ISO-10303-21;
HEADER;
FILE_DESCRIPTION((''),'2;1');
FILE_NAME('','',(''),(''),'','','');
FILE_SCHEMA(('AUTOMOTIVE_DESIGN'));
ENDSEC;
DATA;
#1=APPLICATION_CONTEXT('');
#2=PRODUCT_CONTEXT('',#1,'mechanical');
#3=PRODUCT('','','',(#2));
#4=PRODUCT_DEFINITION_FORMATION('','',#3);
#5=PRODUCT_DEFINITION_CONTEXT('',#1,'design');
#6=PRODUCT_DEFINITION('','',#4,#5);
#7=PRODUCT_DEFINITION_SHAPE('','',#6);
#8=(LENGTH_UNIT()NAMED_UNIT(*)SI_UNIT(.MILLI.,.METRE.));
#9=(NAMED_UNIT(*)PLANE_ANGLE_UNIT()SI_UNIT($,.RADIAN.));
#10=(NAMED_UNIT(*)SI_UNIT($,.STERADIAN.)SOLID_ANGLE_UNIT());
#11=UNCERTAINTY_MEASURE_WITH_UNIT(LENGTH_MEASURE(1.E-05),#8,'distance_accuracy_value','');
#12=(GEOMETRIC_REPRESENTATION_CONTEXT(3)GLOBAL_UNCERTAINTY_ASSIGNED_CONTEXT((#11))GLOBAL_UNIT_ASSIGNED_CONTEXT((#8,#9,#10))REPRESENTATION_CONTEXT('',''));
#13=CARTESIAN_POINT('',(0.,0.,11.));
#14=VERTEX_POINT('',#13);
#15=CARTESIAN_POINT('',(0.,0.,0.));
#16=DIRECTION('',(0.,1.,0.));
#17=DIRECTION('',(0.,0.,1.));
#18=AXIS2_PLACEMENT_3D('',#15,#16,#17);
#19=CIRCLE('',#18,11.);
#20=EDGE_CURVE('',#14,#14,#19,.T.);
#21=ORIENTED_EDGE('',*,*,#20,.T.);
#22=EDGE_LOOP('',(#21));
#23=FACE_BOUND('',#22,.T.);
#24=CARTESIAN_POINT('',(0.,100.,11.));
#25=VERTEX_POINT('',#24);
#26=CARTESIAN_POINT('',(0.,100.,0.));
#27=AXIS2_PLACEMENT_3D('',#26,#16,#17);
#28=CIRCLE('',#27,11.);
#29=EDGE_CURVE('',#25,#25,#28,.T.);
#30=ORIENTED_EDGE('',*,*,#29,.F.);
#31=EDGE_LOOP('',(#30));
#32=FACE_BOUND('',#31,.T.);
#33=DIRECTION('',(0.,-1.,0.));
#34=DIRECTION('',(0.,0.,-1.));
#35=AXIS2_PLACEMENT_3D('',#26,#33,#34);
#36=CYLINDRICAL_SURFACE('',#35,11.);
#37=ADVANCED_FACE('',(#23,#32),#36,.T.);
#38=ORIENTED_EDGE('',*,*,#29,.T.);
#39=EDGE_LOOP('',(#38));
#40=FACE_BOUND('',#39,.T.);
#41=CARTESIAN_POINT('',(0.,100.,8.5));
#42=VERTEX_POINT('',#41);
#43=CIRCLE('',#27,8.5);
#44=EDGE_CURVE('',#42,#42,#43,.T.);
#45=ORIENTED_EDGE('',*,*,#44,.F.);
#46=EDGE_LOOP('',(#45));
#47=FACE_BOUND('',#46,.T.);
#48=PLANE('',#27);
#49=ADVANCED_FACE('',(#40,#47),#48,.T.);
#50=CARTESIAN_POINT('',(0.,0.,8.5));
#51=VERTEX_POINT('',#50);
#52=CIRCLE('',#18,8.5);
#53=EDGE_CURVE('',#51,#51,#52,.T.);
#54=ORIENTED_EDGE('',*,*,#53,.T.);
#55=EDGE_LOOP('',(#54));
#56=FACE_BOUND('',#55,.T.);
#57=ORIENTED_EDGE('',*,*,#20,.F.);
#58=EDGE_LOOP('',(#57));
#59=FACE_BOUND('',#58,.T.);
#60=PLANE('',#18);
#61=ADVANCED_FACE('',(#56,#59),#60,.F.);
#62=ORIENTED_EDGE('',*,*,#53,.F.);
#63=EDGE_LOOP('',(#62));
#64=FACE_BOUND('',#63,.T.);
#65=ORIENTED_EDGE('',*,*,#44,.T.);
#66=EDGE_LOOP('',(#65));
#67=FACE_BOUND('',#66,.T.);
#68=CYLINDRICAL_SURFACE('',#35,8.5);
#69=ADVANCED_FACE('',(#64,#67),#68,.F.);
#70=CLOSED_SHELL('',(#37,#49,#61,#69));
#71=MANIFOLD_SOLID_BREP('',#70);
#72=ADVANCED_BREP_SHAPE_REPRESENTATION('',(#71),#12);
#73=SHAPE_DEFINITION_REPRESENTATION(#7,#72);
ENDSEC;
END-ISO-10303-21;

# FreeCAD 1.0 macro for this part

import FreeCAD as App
import Part
import Sketcher

V = App.Vector
Q = App.Units.Quantity

doc = App.newDocument("Part")
params = doc.addObject("Spreadsheet::Sheet", "Params")
for row, (alias, value) in enumerate([
    ("sketch1_diameter", "22 mm"),
    ("sketch1_diameter2", "17 mm"),
    ("pad1_length", "100 mm"),
], start=1):
    params.set(f"A{row}", alias)
    params.set(f"B{row}", "=" + value)
    params.setAlias(f"B{row}", alias)

body = doc.addObject("PartDesign::Body", "Body")

# Sketch on XZ plane
sketch1 = body.newObject("Sketcher::SketchObject", "Sketch")
sketch1.AttachmentSupport = (doc.getObject("XZ_Plane"), [""])
sketch1.MapMode = "FlatFace"
sketch1.addGeometry([
    Part.Circle(V(0, 0, 0), V(0, 0, 1), 11),
    Part.Circle(V(0, 0, 0), V(0, 0, 1), 8),
], False)
sketch1.addConstraint([
    Sketcher.Constraint("Coincident", 0, 3, -1, 1),
    Sketcher.Constraint("Coincident", 1, 3, -1, 1),
    Sketcher.Constraint("Diameter", 0, Q("22 mm")),
    Sketcher.Constraint("Diameter", 1, Q("17 mm")),
])
sketch1.setExpression("Constraints[2]", "Params.sketch1_diameter")
sketch1.setExpression("Constraints[3]", "Params.sketch1_diameter2")
pad1 = body.newObject("PartDesign::Pad", "Pad")
pad1.Profile = sketch1
pad1.setExpression("Length", "Params.pad1_length")
pad1.Reversed = True

doc.recompute()
